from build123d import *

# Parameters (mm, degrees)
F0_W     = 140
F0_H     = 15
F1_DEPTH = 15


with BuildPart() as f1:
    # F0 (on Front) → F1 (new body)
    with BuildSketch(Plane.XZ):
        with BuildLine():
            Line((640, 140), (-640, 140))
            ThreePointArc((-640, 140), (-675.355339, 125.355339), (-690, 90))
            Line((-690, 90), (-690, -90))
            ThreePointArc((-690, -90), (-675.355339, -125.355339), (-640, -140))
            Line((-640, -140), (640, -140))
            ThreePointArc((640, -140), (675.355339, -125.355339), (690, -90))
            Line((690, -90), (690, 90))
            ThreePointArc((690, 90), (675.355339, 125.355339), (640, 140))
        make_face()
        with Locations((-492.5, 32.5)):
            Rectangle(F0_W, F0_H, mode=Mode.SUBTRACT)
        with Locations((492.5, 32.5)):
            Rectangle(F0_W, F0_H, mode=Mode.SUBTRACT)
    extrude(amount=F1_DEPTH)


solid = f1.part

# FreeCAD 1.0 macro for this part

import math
import FreeCAD as App
import Part
import Sketcher


def add_polygon(sketch, points):
    """Adds a closed chain of lines whose ends are joined by coincident constraints."""
    first, n = sketch.GeometryCount, len(points)
    for a, b in zip(points, points[1:] + points[:1]):
        sketch.addGeometry(Part.LineSegment(App.Vector(*a, 0), App.Vector(*b, 0)), False)
    for i in range(n):
        sketch.addConstraint(Sketcher.Constraint("Coincident", first + i, 2, first + (i + 1) % n, 1))

doc = App.newDocument("Part")
params = doc.addObject("Spreadsheet::Sheet", "Params")
for row, (alias, value) in enumerate([
    ("sketch1_radius", "50 mm"),
    ("sketch1_width", "1280 mm"),
    ("sketch1_width2", "140 mm"),
    ("sketch1_height", "180 mm"),
    ("sketch1_height2", "15 mm"),
    ("pad1_length", "15 mm"),
], start=1):
    params.set(f"A{row}", alias)
    params.set(f"B{row}", "=" + value)
    params.setAlias(f"B{row}", alias)

body = doc.addObject("PartDesign::Body", "Body")

# Sketch on XZ plane
sketch1 = body.newObject("Sketcher::SketchObject", "Sketch")
sketch1.AttachmentSupport = (doc.getObject("XZ_Plane"), [""])
sketch1.MapMode = "FlatFace"
sketch1.addGeometry(Part.LineSegment(App.Vector(640, 140, 0), App.Vector(-640, 140, 0)), False)  # 0
sketch1.addGeometry(Part.ArcOfCircle(Part.Circle(App.Vector(-640, 90, 0), App.Vector(0, 0, 1), 50), math.radians(90), math.radians(180)), False)  # 1
sketch1.addGeometry(Part.LineSegment(App.Vector(-690, 90, 0), App.Vector(-690, -90, 0)), False)  # 2
sketch1.addGeometry(Part.ArcOfCircle(Part.Circle(App.Vector(-640, -90, 0), App.Vector(0, 0, 1), 50), math.radians(-180), math.radians(-90)), False)  # 3
sketch1.addGeometry(Part.LineSegment(App.Vector(-640, -140, 0), App.Vector(640, -140, 0)), False)  # 4
sketch1.addGeometry(Part.ArcOfCircle(Part.Circle(App.Vector(640, -90, 0), App.Vector(0, 0, 1), 50), math.radians(-90), math.radians(0)), False)  # 5
sketch1.addGeometry(Part.LineSegment(App.Vector(690, -90, 0), App.Vector(690, 90, 0)), False)  # 6
sketch1.addGeometry(Part.ArcOfCircle(Part.Circle(App.Vector(640, 90, 0), App.Vector(0, 0, 1), 50), math.radians(0), math.radians(90)), False)  # 7
add_polygon(sketch1, [(-422, 25), (-562, 25), (-562, 40), (-422, 40)])  # lines 8-11
add_polygon(sketch1, [(562, 25), (422, 25), (422, 40), (562, 40)])  # lines 12-15
sketch1.addConstraint([
    Sketcher.Constraint("Tangent", 0, 2, 1, 1),
    Sketcher.Constraint("Tangent", 1, 2, 2, 1),
    Sketcher.Constraint("Tangent", 2, 2, 3, 1),
    Sketcher.Constraint("Tangent", 3, 2, 4, 1),
    Sketcher.Constraint("Tangent", 4, 2, 5, 1),
    Sketcher.Constraint("Tangent", 5, 2, 6, 1),
    Sketcher.Constraint("Tangent", 6, 2, 7, 1),
    Sketcher.Constraint("Tangent", 7, 2, 0, 1),
    Sketcher.Constraint("Horizontal", 0),
    Sketcher.Constraint("Vertical", 2),
    Sketcher.Constraint("Horizontal", 4),
    Sketcher.Constraint("Vertical", 6),
    Sketcher.Constraint("Horizontal", 8),
    Sketcher.Constraint("Vertical", 9),
    Sketcher.Constraint("Horizontal", 10),
    Sketcher.Constraint("Vertical", 11),
    Sketcher.Constraint("Horizontal", 12),
    Sketcher.Constraint("Vertical", 13),
    Sketcher.Constraint("Horizontal", 14),
    Sketcher.Constraint("Vertical", 15),
    Sketcher.Constraint("Equal", 1, 3),
    Sketcher.Constraint("Equal", 3, 5),
    Sketcher.Constraint("Equal", 5, 7),
    Sketcher.Constraint("Symmetric", 1, 3, 5, 3, -1, 1),
    Sketcher.Constraint("Symmetric", 11, 2, 12, 2, -2),
    Sketcher.Constraint("Symmetric", 9, 2, 14, 2, -2),
    Sketcher.Constraint("Radius", 1, 50.0),
    Sketcher.Constraint("DistanceX", 0, 2, 0, 1, 1280.0),
    Sketcher.Constraint("DistanceX", 8, 2, 8, 1, 140.0),
    Sketcher.Constraint("DistanceY", 2, 2, 2, 1, 180.0),
    Sketcher.Constraint("DistanceY", 9, 1, 9, 2, 15.0),
    Sketcher.Constraint("DistanceY", -1, 1, 8, 2, 25.0),
    Sketcher.Constraint("DistanceX", 8, 2, -1, 1, 562.5),
])
sketch1.setExpression("Constraints[34]", "Params.sketch1_radius")
sketch1.setExpression("Constraints[35]", "Params.sketch1_width")
sketch1.setExpression("Constraints[36]", "Params.sketch1_width2")
sketch1.setExpression("Constraints[37]", "Params.sketch1_height")
sketch1.setExpression("Constraints[38]", "Params.sketch1_height2")
pad1 = body.newObject("PartDesign::Pad", "Pad")
pad1.Profile = sketch1
pad1.setExpression("Length", "Params.pad1_length")

doc.recompute()
